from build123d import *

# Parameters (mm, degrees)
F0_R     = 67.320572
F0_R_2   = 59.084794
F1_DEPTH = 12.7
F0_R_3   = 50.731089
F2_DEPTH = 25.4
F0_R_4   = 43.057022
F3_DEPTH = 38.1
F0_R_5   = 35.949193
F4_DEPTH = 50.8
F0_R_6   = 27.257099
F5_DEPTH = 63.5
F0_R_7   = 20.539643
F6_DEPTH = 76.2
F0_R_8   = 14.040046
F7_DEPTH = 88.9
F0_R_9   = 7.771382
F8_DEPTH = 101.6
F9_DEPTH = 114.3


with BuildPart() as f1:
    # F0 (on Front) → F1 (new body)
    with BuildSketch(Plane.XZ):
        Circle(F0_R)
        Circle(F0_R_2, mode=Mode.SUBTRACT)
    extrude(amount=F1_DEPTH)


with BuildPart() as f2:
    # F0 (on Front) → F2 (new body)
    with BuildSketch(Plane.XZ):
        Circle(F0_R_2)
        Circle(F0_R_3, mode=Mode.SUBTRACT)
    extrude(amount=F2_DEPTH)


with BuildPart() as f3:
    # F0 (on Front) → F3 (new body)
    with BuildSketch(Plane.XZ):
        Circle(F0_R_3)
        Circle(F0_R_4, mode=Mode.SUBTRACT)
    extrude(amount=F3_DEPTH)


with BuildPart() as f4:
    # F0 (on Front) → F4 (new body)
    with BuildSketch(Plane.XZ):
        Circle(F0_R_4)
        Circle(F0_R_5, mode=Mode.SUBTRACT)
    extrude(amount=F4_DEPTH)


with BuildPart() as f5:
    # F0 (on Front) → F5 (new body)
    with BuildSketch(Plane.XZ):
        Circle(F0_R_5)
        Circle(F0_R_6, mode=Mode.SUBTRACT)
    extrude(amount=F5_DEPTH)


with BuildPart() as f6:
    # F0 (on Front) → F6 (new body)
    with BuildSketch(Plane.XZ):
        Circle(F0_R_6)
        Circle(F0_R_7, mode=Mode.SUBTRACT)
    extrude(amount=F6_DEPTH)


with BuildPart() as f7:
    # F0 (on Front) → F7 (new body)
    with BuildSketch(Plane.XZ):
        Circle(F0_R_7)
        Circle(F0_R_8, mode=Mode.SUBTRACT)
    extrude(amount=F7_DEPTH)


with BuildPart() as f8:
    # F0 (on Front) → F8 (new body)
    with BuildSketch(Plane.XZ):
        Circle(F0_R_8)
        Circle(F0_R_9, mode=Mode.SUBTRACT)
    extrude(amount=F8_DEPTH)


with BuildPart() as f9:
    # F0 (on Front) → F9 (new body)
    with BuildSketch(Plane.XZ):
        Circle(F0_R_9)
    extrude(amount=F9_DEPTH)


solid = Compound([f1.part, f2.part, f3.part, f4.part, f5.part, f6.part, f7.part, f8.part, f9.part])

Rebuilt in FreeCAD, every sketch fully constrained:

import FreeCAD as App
import Part
import Sketcher

V = App.Vector
Q = App.Units.Quantity

doc = App.newDocument("Part")
body = doc.addObject("PartDesign::Body", "Body")

# Sketch on XZ plane
sketch1 = body.newObject("Sketcher::SketchObject", "Sketch")
sketch1.AttachmentSupport = (doc.getObject("XZ_Plane"), [""])
sketch1.MapMode = "FlatFace"
sketch1.addGeometry([
    Part.Circle(V(0, 0, 0), V(0, 0, 1), 67.320572),
    Part.Circle(V(0, 0, 0), V(0, 0, 1), 59.084794),
], False)
sketch1.addConstraint([
    Sketcher.Constraint("Coincident", 0, 3, -1, 1),
    Sketcher.Constraint("Coincident", 1, 3, -1, 1),
    Sketcher.Constraint("Diameter", 1, 118.169588),
    Sketcher.Constraint("Diameter", 0, 134.641144),
])
pad1 = body.newObject("PartDesign::Pad", "Pad")
pad1.Profile = sketch1
pad1.Length = Q("0.5 in")
body2 = doc.addObject("PartDesign::Body", "Body001")

# Sketch on XZ plane
sketch2 = body2.newObject("Sketcher::SketchObject", "Sketch001")
sketch2.AttachmentSupport = (doc.getObject("XZ_Plane001"), [""])
sketch2.MapMode = "FlatFace"
sketch2.addGeometry([
    Part.Circle(V(0, 0, 0), V(0, 0, 1), 59.084794),
    Part.Circle(V(0, 0, 0), V(0, 0, 1), 50.731089),
], False)
sketch2.addConstraint([
    Sketcher.Constraint("Coincident", 0, 3, -1, 1),
    Sketcher.Constraint("Coincident", 1, 3, -1, 1),
    Sketcher.Constraint("Diameter", 0, 118.169588),
    Sketcher.Constraint("Diameter", 1, 101.462178),
])
pad2 = body2.newObject("PartDesign::Pad", "Pad001")
pad2.Profile = sketch2
pad2.Length = Q("1 in")
body3 = doc.addObject("PartDesign::Body", "Body002")

# Sketch on XZ plane
sketch3 = body3.newObject("Sketcher::SketchObject", "Sketch002")
sketch3.AttachmentSupport = (doc.getObject("XZ_Plane002"), [""])
sketch3.MapMode = "FlatFace"
sketch3.addGeometry([
    Part.Circle(V(0, 0, 0), V(0, 0, 1), 50.731089),
    Part.Circle(V(0, 0, 0), V(0, 0, 1), 43.057022),
], False)
sketch3.addConstraint([
    Sketcher.Constraint("Coincident", 0, 3, -1, 1),
    Sketcher.Constraint("Coincident", 1, 3, -1, 1),
    Sketcher.Constraint("Diameter", 0, 101.462178),
    Sketcher.Constraint("Diameter", 1, 86.114044),
])
pad3 = body3.newObject("PartDesign::Pad", "Pad002")
pad3.Profile = sketch3
pad3.Length = Q("1.5 in")
body4 = doc.addObject("PartDesign::Body", "Body003")

# Sketch on XZ plane
sketch4 = body4.newObject("Sketcher::SketchObject", "Sketch003")
sketch4.AttachmentSupport = (doc.getObject("XZ_Plane003"), [""])
sketch4.MapMode = "FlatFace"
sketch4.addGeometry([
    Part.Circle(V(0, 0, 0), V(0, 0, 1), 43.057022),
    Part.Circle(V(0, 0, 0), V(0, 0, 1), 35.949193),
], False)
sketch4.addConstraint([
    Sketcher.Constraint("Coincident", 0, 3, -1, 1),
    Sketcher.Constraint("Coincident", 1, 3, -1, 1),
    Sketcher.Constraint("Diameter", 0, 86.114044),
    Sketcher.Constraint("Diameter", 1, 71.898386),
])
pad4 = body4.newObject("PartDesign::Pad", "Pad003")
pad4.Profile = sketch4
pad4.Length = Q("2 in")
body5 = doc.addObject("PartDesign::Body", "Body004")

# Sketch on XZ plane
sketch5 = body5.newObject("Sketcher::SketchObject", "Sketch004")
sketch5.AttachmentSupport = (doc.getObject("XZ_Plane004"), [""])
sketch5.MapMode = "FlatFace"
sketch5.addGeometry([
    Part.Circle(V(0, 0, 0), V(0, 0, 1), 35.949193),
    Part.Circle(V(0, 0, 0), V(0, 0, 1), 27.257099),
], False)
sketch5.addConstraint([
    Sketcher.Constraint("Coincident", 0, 3, -1, 1),
    Sketcher.Constraint("Coincident", 1, 3, -1, 1),
    Sketcher.Constraint("Diameter", 0, 71.898386),
    Sketcher.Constraint("Diameter", 1, 54.514198),
])
pad5 = body5.newObject("PartDesign::Pad", "Pad004")
pad5.Profile = sketch5
pad5.Length = Q("2.5 in")
body6 = doc.addObject("PartDesign::Body", "Body005")

# Sketch on XZ plane
sketch6 = body6.newObject("Sketcher::SketchObject", "Sketch005")
sketch6.AttachmentSupport = (doc.getObject("XZ_Plane005"), [""])
sketch6.MapMode = "FlatFace"
sketch6.addGeometry([
    Part.Circle(V(0, 0, 0), V(0, 0, 1), 27.257099),
    Part.Circle(V(0, 0, 0), V(0, 0, 1), 20.539643),
], False)
sketch6.addConstraint([
    Sketcher.Constraint("Coincident", 0, 3, -1, 1),
    Sketcher.Constraint("Coincident", 1, 3, -1, 1),
    Sketcher.Constraint("Diameter", 0, 54.514198),
    Sketcher.Constraint("Diameter", 1, 41.079286),
])
pad6 = body6.newObject("PartDesign::Pad", "Pad005")
pad6.Profile = sketch6
pad6.Length = Q("3 in")
body7 = doc.addObject("PartDesign::Body", "Body006")

# Sketch on XZ plane
sketch7 = body7.newObject("Sketcher::SketchObject", "Sketch006")
sketch7.AttachmentSupport = (doc.getObject("XZ_Plane006"), [""])
sketch7.MapMode = "FlatFace"
sketch7.addGeometry([
    Part.Circle(V(0, 0, 0), V(0, 0, 1), 20.539643),
    Part.Circle(V(0, 0, 0), V(0, 0, 1), 14.040046),
], False)
sketch7.addConstraint([
    Sketcher.Constraint("Coincident", 0, 3, -1, 1),
    Sketcher.Constraint("Coincident", 1, 3, -1, 1),
    Sketcher.Constraint("Diameter", 0, 41.079286),
    Sketcher.Constraint("Diameter", 1, 28.080092),
])
pad7 = body7.newObject("PartDesign::Pad", "Pad006")
pad7.Profile = sketch7
pad7.Length = Q("3.5 in")
body8 = doc.addObject("PartDesign::Body", "Body007")

# Sketch on XZ plane
sketch8 = body8.newObject("Sketcher::SketchObject", "Sketch007")
sketch8.AttachmentSupport = (doc.getObject("XZ_Plane007"), [""])
sketch8.MapMode = "FlatFace"
sketch8.addGeometry([
    Part.Circle(V(0, 0, 0), V(0, 0, 1), 14.040046),
    Part.Circle(V(0, 0, 0), V(0, 0, 1), 7.771382),
], False)
sketch8.addConstraint([
    Sketcher.Constraint("Coincident", 0, 3, -1, 1),
    Sketcher.Constraint("Coincident", 1, 3, -1, 1),
    Sketcher.Constraint("Diameter", 0, 28.080092),
    Sketcher.Constraint("Diameter", 1, 15.542764),
])
pad8 = body8.newObject("PartDesign::Pad", "Pad007")
pad8.Profile = sketch8
pad8.Length = Q("4 in")
body9 = doc.addObject("PartDesign::Body", "Body008")

# Sketch on XZ plane
sketch9 = body9.newObject("Sketcher::SketchObject", "Sketch008")
sketch9.AttachmentSupport = (doc.getObject("XZ_Plane008"), [""])
sketch9.MapMode = "FlatFace"
sketch9.addGeometry(Part.Circle(V(0, 0, 0), V(0, 0, 1), 7.771382), False)
sketch9.addConstraint([
    Sketcher.Constraint("Coincident", 0, 3, -1, 1),
    Sketcher.Constraint("Diameter", 0, 15.542764),
])
pad9 = body9.newObject("PartDesign::Pad", "Pad008")
pad9.Profile = sketch9
pad9.Length = Q("4.5 in")

doc.recompute()
